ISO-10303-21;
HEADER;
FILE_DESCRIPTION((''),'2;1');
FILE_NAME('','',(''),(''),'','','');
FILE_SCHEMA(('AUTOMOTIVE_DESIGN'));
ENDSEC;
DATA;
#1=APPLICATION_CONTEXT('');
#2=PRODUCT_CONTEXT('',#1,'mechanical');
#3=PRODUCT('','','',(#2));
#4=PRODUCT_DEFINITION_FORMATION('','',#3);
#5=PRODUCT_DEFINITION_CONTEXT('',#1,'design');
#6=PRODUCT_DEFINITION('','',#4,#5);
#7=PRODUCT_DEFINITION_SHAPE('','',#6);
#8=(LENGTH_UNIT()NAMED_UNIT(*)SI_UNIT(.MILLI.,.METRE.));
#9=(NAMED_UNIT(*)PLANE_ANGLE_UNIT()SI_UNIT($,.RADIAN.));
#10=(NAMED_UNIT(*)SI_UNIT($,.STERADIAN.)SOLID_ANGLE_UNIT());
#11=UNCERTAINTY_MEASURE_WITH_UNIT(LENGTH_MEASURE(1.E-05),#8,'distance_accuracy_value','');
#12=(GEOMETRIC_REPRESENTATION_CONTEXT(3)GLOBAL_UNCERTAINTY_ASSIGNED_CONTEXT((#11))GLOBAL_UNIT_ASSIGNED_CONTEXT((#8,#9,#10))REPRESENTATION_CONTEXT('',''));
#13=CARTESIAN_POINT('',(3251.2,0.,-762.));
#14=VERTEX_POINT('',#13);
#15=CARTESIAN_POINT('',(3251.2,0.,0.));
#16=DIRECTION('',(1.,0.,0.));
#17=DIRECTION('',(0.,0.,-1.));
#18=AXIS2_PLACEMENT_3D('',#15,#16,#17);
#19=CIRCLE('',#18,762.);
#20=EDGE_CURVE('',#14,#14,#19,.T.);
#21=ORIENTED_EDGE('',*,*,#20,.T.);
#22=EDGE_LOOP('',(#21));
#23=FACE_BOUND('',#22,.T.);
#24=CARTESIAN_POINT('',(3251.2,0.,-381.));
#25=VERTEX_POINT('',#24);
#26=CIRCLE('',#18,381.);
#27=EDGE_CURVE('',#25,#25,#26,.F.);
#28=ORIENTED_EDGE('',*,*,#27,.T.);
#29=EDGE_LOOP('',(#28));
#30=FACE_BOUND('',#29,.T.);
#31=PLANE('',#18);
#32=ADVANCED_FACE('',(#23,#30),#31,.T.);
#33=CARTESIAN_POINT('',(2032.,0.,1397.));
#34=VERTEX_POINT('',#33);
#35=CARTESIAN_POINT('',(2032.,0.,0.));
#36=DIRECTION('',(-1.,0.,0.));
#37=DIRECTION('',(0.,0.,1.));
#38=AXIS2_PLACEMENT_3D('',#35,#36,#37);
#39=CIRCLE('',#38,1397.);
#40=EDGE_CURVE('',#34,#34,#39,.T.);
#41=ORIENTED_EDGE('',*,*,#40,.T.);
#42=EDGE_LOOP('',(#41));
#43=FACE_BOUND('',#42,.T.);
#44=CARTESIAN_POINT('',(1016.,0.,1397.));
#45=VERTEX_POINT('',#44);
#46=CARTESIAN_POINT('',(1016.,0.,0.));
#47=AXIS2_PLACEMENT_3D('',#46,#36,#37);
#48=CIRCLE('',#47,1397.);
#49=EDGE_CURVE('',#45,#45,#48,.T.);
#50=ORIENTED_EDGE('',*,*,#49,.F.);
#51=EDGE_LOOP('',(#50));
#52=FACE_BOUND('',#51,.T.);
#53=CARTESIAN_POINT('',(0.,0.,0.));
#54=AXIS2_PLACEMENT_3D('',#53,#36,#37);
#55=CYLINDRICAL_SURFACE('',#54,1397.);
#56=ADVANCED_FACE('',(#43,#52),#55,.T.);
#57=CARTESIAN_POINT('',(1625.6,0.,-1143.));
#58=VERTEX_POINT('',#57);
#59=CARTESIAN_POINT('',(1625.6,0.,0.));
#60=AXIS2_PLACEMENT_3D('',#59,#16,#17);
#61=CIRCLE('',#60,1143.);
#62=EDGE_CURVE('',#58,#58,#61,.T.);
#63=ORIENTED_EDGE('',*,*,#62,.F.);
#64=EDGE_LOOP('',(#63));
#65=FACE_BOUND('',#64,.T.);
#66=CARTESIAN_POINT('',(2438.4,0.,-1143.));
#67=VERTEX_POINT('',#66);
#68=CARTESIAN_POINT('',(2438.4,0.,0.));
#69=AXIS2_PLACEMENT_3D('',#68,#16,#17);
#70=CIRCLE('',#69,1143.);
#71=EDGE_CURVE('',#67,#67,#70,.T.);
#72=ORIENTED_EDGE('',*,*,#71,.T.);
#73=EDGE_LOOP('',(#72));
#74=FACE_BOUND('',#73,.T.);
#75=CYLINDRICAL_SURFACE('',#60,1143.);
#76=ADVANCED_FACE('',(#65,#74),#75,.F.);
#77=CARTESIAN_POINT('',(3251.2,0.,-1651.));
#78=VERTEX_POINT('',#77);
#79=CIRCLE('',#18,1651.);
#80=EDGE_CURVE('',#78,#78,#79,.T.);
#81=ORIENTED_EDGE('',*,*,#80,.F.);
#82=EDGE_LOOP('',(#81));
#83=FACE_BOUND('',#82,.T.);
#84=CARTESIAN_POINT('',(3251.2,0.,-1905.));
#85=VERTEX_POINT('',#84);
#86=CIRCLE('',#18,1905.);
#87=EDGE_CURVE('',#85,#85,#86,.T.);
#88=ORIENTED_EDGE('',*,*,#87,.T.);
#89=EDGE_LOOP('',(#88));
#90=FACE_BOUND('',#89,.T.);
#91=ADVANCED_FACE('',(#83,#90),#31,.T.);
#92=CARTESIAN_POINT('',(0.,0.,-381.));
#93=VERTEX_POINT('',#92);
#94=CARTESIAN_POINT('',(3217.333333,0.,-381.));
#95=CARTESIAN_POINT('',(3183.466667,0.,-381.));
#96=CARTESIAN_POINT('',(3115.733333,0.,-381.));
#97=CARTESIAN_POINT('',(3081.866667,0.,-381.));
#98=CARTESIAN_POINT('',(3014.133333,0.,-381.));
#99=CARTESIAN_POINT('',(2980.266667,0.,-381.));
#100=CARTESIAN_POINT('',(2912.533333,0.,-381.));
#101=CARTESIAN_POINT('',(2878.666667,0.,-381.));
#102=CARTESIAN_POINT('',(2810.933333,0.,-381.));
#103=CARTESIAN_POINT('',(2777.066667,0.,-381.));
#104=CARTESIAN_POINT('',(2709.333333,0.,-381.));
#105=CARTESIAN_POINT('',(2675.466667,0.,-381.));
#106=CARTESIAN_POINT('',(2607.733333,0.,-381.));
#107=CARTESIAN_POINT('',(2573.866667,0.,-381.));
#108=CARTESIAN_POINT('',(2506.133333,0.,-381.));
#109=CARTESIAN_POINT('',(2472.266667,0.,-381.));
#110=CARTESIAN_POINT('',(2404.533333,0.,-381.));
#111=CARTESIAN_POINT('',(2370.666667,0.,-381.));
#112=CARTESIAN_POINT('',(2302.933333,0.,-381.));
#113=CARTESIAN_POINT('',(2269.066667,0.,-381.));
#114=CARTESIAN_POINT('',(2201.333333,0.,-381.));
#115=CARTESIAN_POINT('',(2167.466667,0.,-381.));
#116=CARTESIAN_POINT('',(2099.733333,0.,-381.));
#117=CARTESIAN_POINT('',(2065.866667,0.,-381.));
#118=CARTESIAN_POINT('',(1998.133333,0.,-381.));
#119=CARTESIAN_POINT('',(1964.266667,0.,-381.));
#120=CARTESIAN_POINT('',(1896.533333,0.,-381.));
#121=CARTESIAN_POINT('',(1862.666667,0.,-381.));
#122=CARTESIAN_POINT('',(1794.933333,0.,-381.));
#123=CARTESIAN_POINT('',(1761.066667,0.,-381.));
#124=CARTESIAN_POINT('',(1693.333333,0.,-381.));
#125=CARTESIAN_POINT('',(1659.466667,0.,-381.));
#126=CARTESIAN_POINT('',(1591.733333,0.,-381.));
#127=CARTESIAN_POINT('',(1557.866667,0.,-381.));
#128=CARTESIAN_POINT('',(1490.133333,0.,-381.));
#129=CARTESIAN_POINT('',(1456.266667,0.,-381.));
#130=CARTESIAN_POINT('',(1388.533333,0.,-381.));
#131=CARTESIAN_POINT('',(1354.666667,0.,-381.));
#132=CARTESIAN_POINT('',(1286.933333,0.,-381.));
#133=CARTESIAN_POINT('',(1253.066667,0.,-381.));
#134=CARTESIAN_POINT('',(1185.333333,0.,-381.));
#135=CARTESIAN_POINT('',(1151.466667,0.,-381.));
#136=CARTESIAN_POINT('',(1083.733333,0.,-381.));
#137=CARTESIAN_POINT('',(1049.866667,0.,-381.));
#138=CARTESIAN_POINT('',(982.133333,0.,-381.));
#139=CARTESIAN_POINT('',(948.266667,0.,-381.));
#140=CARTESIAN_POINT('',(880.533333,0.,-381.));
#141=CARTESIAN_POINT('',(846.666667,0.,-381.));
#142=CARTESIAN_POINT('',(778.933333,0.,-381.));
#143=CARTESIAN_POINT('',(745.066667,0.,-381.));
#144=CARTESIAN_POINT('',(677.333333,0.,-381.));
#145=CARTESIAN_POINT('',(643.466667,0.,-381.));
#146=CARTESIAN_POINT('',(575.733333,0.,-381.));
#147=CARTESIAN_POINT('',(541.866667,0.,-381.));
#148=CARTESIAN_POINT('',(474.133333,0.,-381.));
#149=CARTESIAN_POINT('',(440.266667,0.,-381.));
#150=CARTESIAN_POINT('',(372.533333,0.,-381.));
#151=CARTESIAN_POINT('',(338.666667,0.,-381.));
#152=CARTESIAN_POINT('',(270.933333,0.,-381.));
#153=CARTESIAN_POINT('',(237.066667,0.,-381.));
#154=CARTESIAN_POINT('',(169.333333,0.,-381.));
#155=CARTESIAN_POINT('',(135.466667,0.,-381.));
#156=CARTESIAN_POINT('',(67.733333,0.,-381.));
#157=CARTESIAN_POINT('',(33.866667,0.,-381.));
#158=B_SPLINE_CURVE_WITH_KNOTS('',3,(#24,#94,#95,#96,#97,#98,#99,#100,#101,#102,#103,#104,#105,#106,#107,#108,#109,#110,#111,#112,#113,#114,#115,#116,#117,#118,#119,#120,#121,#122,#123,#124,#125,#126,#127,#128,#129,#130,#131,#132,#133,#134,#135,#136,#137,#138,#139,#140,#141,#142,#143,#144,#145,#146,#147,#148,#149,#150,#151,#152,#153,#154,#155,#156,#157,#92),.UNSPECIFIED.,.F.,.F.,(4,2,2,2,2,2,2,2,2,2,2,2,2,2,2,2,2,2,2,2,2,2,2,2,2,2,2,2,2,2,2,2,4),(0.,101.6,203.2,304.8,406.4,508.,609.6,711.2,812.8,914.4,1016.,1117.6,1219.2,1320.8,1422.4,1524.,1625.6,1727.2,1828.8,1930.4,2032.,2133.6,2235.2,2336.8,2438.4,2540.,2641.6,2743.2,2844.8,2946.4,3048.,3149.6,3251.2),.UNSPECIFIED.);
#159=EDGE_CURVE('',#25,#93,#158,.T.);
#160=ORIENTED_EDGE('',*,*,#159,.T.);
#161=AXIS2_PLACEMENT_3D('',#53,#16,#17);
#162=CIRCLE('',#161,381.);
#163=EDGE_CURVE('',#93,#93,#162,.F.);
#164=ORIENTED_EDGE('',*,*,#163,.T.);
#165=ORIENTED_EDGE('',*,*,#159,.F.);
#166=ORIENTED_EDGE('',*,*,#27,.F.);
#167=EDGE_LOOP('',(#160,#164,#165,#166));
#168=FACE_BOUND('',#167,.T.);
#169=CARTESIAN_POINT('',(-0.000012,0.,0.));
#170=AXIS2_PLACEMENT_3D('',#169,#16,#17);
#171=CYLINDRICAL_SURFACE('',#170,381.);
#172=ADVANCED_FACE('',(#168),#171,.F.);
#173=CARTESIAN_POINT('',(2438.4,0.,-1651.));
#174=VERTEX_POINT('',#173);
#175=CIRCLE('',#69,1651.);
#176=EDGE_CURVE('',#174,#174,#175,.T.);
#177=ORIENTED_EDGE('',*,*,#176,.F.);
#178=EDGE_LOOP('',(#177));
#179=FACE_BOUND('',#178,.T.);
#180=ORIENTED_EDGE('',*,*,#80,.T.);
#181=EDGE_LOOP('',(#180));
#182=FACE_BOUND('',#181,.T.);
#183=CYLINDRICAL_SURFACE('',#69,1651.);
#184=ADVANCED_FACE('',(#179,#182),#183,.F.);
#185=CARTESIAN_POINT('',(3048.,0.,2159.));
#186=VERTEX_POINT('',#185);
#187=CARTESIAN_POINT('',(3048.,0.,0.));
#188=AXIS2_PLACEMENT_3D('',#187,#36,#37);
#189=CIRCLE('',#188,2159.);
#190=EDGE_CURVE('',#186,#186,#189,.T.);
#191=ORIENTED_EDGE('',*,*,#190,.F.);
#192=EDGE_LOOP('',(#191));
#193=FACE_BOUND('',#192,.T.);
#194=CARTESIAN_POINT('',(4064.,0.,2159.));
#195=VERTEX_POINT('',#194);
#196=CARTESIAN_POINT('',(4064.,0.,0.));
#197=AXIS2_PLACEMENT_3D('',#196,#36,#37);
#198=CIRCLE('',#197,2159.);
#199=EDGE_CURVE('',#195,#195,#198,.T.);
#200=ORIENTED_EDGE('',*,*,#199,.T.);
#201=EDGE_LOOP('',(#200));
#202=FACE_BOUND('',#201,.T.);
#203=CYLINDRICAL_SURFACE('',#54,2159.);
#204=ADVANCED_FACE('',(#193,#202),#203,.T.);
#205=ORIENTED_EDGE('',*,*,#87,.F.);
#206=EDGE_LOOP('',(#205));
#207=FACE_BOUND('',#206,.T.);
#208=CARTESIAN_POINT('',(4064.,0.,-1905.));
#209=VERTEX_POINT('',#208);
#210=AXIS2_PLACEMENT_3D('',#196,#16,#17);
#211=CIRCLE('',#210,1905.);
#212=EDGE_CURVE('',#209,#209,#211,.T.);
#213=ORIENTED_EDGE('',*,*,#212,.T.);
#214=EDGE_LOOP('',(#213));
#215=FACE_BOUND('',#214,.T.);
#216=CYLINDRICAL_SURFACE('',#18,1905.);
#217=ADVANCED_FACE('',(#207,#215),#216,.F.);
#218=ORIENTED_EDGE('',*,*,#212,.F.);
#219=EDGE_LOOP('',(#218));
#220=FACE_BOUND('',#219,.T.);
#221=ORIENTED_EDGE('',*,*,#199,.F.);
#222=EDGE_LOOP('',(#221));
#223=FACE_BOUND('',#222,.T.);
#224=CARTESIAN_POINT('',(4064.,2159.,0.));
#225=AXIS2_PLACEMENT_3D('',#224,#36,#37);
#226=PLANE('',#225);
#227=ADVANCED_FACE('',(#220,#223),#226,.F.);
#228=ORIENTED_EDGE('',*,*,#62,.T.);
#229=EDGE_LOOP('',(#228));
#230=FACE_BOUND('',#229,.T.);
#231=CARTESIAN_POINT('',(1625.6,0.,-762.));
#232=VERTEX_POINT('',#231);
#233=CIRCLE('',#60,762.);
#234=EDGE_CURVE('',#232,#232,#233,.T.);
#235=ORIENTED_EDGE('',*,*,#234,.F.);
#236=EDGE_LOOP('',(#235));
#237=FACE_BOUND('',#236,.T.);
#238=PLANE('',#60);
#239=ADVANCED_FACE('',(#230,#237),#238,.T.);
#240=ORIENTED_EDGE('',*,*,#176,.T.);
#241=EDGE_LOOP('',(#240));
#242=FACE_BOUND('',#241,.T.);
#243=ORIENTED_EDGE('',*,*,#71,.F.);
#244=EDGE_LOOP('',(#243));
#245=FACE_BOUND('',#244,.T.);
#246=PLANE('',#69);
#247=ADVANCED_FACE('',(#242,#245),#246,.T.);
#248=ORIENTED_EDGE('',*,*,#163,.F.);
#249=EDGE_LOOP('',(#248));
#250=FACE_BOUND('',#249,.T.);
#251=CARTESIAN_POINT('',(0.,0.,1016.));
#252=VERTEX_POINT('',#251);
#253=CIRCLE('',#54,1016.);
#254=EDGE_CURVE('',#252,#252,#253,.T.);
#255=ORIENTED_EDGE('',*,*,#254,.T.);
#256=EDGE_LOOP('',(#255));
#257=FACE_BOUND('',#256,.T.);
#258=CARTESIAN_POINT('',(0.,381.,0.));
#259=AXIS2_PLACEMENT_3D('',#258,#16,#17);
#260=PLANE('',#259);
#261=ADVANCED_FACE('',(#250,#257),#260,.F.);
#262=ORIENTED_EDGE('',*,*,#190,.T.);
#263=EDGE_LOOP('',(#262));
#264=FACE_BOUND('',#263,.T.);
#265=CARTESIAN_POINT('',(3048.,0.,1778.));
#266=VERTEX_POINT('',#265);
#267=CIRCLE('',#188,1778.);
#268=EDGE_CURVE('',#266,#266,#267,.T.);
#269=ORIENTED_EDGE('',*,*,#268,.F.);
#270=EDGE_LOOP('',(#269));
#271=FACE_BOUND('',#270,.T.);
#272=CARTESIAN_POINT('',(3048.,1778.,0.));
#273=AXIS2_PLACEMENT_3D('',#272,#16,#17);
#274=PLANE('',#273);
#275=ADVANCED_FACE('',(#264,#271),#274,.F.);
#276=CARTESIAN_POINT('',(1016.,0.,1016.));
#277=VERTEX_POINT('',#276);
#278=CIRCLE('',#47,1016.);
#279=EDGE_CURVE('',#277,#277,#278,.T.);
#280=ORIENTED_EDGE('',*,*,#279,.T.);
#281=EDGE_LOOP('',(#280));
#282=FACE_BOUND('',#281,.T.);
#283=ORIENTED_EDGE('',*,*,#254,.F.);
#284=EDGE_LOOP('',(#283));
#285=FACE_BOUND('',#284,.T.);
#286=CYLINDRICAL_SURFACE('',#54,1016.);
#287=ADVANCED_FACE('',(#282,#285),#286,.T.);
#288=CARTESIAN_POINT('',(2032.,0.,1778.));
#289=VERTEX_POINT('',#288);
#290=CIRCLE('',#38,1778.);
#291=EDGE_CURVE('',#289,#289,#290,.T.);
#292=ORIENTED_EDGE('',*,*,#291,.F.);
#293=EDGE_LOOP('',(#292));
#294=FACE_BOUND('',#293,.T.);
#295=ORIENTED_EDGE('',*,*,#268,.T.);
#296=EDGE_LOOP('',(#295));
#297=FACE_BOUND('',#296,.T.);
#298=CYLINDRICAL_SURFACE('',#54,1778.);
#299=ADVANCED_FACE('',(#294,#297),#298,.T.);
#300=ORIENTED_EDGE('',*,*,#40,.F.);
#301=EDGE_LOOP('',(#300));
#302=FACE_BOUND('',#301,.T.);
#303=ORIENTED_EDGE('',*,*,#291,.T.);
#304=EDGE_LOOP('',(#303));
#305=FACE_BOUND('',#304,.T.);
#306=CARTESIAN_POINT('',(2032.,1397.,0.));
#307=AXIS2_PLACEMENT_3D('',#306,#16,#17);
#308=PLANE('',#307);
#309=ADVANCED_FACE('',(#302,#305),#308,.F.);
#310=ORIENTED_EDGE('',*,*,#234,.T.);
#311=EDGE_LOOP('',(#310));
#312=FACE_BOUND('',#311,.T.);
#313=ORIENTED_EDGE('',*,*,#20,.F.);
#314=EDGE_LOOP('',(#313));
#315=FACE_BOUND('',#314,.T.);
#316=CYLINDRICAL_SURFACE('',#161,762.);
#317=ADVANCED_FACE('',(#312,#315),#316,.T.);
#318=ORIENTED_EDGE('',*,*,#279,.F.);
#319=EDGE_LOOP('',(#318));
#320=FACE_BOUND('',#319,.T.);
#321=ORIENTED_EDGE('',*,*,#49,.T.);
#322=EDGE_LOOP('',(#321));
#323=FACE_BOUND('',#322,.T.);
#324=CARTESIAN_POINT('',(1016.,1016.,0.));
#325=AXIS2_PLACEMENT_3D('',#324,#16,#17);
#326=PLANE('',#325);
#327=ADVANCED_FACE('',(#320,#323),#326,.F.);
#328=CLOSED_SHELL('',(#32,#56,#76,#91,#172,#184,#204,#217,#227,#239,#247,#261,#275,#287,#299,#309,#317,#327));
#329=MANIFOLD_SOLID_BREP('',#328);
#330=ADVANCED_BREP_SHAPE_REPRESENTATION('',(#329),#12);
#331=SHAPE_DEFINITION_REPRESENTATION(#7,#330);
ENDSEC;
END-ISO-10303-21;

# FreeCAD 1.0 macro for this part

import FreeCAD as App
import Part
import Sketcher
Q = App.Units.Quantity


def add_polygon(sketch, points):
    """Adds a closed chain of lines whose ends are joined by coincident constraints."""
    first, n = sketch.GeometryCount, len(points)
    for a, b in zip(points, points[1:] + points[:1]):
        sketch.addGeometry(Part.LineSegment(App.Vector(*a, 0), App.Vector(*b, 0)), False)
    for i in range(n):
        sketch.addConstraint(Sketcher.Constraint("Coincident", first + i, 2, first + (i + 1) % n, 1))

doc = App.newDocument("Part")
body = doc.addObject("PartDesign::Body", "Body")

# Sketch on XY plane
sketch1 = body.newObject("Sketcher::SketchObject", "Sketch")
sketch1.AttachmentSupport = (doc.getObject("XY_Plane"), [""])
sketch1.MapMode = "FlatFace"
add_polygon(sketch1, [(0, 1016), (0, 381), (4064, 381), (4064, 2159), (3048, 2159), (3048, 1778), (2032, 1778), (2032, 1397), (1016, 1397), (1016, 1016)])  # lines 0-9
sketch1.addConstraint([
    Sketcher.Constraint("Vertical", 0),
    Sketcher.Constraint("Horizontal", 1),
    Sketcher.Constraint("Vertical", 2),
    Sketcher.Constraint("Horizontal", 3),
    Sketcher.Constraint("Vertical", 4),
    Sketcher.Constraint("Horizontal", 5),
    Sketcher.Constraint("Vertical", 6),
    Sketcher.Constraint("Horizontal", 7),
    Sketcher.Constraint("Vertical", 8),
    Sketcher.Constraint("Horizontal", 9),
    Sketcher.Constraint("PointOnObject", 0, 2, -2),
    Sketcher.Constraint("Equal", 3, 5),
    Sketcher.Constraint("Equal", 5, 7),
    Sketcher.Constraint("Equal", 7, 9),
    Sketcher.Constraint("Equal", 4, 6),
    Sketcher.Constraint("Equal", 6, 8),
    Sketcher.Constraint("DistanceX", 1, 1, 1, 2, Q("160 in")),
    Sketcher.Constraint("DistanceY", 0, 2, 0, 1, Q("25 in")),
    Sketcher.Constraint("DistanceY", 2, 1, 2, 2, Q("70 in")),
    Sketcher.Constraint("DistanceY", -1, 1, 0, 2, Q("15 in")),
])
revolution = body.newObject("PartDesign::Revolution", "Revolution")
revolution.Profile = sketch1
revolution.ReferenceAxis = (sketch1, ["H_Axis"])
revolution.Angle = 360

# Sketch on YZ plane
sketch2 = body.newObject("Sketcher::SketchObject", "Sketch001")
sketch2.AttachmentSupport = (doc.getObject("YZ_Plane"), [""])
sketch2.MapMode = "FlatFace"
sketch2.AttachmentOffset = App.Placement(App.Vector(0, 0, 160 * 25.4), App.Rotation())
sketch2.addGeometry(Part.Circle(App.Vector(0, 0, 0), App.Vector(0, 0, 1), 1905), False)
sketch2.addConstraint([
    Sketcher.Constraint("Coincident", 0, 3, -1, 1),
    Sketcher.Constraint("Diameter", 0, Q("150 in")),
])
pocket1 = body.newObject("PartDesign::Pocket", "Pocket")
pocket1.Profile = sketch2
pocket1.Length = Q("32 in")

# Sketch on YZ plane
sketch3 = body.newObject("Sketcher::SketchObject", "Sketch002")
sketch3.AttachmentSupport = (doc.getObject("YZ_Plane"), [""])
sketch3.MapMode = "FlatFace"
sketch3.AttachmentOffset = App.Placement(App.Vector(0, 0, 128 * 25.4), App.Rotation())
sketch3.addGeometry(Part.Circle(App.Vector(0, 0, 0), App.Vector(0, 0, 1), 1651), False)
sketch3.addConstraint([
    Sketcher.Constraint("Coincident", 0, 3, -1, 1),
    Sketcher.Constraint("Diameter", 0, Q("130 in")),
])
pocket2 = body.newObject("PartDesign::Pocket", "Pocket001")
pocket2.Profile = sketch3
pocket2.Length = Q("32 in")

# Sketch on YZ plane
sketch4 = body.newObject("Sketcher::SketchObject", "Sketch003")
sketch4.AttachmentSupport = (doc.getObject("YZ_Plane"), [""])
sketch4.MapMode = "FlatFace"
sketch4.AttachmentOffset = App.Placement(App.Vector(0, 0, 96 * 25.4), App.Rotation())
sketch4.addGeometry(Part.Circle(App.Vector(0, 0, 0), App.Vector(0, 0, 1), 1143), False)
sketch4.addConstraint([
    Sketcher.Constraint("Coincident", 0, 3, -1, 1),
    Sketcher.Constraint("Diameter", 0, Q("90 in")),
])
pocket3 = body.newObject("PartDesign::Pocket", "Pocket002")
pocket3.Profile = sketch4
pocket3.Length = Q("32 in")

# Sketch on YZ plane
sketch5 = body.newObject("Sketcher::SketchObject", "Sketch004")
sketch5.AttachmentSupport = (doc.getObject("YZ_Plane"), [""])
sketch5.MapMode = "FlatFace"
sketch5.AttachmentOffset = App.Placement(App.Vector(0, 0, 128 * 25.4), App.Rotation())
sketch5.addGeometry(Part.Circle(App.Vector(0, 0, 0), App.Vector(0, 0, 1), 762), False)
sketch5.addConstraint([
    Sketcher.Constraint("Coincident", 0, 3, -1, 1),
    Sketcher.Constraint("Diameter", 0, Q("60 in")),
])
pad1 = body.newObject("PartDesign::Pad", "Pad")
pad1.Profile = sketch5
pad1.Length = Q("128 in")
pad1.Reversed = True

# Sketch on YZ plane
sketch6 = body.newObject("Sketcher::SketchObject", "Sketch005")
sketch6.AttachmentSupport = (doc.getObject("YZ_Plane"), [""])
sketch6.MapMode = "FlatFace"
sketch6.addGeometry(Part.Circle(App.Vector(0, 0, 0), App.Vector(0, 0, 1), 381), False)
sketch6.addConstraint([
    Sketcher.Constraint("Coincident", 0, 3, -1, 1),
    Sketcher.Constraint("Diameter", 0, Q("30 in")),
])
pocket4 = body.newObject("PartDesign::Pocket", "Pocket003")
pocket4.Profile = sketch6
pocket4.Type = "UpToFirst"
pocket4.Reversed = True

# Sketch on YZ plane
sketch7 = body.newObject("Sketcher::SketchObject", "Sketch006")
sketch7.AttachmentSupport = (doc.getObject("YZ_Plane"), [""])
sketch7.MapMode = "FlatFace"
sketch7.addGeometry(Part.Circle(App.Vector(0, 0, 0), App.Vector(0, 0, 1), 381), False)
sketch7.addConstraint([
    Sketcher.Constraint("Coincident", 0, 3, -1, 1),
    Sketcher.Constraint("Diameter", 0, Q("30 in")),
])
pocket5 = body.newObject("PartDesign::Pocket", "Pocket004")
pocket5.Profile = sketch7
pocket5.Length = 5084.174008

doc.recompute()
